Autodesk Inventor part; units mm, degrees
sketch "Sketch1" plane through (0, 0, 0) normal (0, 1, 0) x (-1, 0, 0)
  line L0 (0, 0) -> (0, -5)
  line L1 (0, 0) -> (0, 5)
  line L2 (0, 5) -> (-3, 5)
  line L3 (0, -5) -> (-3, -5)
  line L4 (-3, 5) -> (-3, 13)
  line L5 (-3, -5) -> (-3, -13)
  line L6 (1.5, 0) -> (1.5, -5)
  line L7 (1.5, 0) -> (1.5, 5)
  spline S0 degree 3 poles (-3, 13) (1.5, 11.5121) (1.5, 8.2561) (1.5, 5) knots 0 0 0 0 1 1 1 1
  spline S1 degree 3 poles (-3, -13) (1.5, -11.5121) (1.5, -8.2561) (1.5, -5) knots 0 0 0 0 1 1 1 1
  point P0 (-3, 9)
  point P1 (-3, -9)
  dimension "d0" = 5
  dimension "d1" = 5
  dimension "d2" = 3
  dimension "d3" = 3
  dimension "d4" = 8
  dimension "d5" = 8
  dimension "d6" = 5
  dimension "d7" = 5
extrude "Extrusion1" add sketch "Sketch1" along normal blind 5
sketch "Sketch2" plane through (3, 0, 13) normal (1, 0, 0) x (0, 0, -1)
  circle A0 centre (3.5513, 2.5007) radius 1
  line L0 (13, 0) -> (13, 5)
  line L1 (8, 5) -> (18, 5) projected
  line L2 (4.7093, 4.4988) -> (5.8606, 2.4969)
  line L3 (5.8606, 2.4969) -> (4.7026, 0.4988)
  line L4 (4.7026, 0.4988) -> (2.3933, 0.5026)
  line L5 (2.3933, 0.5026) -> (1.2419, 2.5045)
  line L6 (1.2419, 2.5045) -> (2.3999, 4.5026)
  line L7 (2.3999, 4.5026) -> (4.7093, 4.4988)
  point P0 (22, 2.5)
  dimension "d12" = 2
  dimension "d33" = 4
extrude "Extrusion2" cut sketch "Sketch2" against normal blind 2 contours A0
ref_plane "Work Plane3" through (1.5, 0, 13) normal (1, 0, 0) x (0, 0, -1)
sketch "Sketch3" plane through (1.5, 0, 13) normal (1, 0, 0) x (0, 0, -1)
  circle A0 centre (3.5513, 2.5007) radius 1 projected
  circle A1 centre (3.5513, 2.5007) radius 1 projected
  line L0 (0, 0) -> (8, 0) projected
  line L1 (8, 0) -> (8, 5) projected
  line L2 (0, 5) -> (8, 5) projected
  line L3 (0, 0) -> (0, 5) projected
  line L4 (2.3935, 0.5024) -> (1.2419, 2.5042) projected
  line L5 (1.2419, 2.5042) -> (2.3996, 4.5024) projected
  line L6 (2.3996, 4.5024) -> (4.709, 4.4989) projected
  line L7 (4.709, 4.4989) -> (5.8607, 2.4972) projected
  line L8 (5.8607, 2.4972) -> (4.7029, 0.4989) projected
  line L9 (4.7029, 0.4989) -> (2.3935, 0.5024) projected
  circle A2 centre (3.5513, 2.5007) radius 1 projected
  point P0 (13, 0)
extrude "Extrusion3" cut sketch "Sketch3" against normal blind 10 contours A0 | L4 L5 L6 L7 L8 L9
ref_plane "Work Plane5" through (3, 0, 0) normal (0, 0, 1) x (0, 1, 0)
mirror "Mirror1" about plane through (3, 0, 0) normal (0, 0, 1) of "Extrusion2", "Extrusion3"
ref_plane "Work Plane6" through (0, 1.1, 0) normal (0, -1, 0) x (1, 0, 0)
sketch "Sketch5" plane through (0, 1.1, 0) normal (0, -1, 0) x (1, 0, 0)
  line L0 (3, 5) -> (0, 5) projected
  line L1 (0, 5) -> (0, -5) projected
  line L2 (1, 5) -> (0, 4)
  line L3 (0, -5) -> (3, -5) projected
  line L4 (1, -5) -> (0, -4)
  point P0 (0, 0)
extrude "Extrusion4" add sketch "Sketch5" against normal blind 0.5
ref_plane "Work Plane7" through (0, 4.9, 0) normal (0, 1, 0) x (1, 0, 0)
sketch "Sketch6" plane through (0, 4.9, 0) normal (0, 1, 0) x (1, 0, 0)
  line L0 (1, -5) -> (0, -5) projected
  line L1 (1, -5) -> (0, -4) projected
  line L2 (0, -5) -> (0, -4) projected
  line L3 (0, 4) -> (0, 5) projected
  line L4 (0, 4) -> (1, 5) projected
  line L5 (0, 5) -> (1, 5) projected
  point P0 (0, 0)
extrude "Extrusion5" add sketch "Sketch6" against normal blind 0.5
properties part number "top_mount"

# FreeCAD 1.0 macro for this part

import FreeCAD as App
import Part
import Sketcher

V = App.Vector
Q = App.Units.Quantity


def add_polygon(sketch, points):
    """Adds a closed chain of lines whose ends are joined by coincident constraints."""
    first, n = sketch.GeometryCount, len(points)
    for a, b in zip(points, points[1:] + points[:1]):
        sketch.addGeometry(Part.LineSegment(App.Vector(*a, 0), App.Vector(*b, 0)), False)
    for i in range(n):
        sketch.addConstraint(Sketcher.Constraint("Coincident", first + i, 2, first + (i + 1) % n, 1))

doc = App.newDocument("Part")
body = doc.addObject("PartDesign::Body", "Body")

sketch1 = body.newObject("Sketcher::SketchObject", "Sketch")
sketch1.AttachmentSupport = (doc.getObject("XZ_Plane"), [""])
sketch1.MapMode = "FlatFace"
sketch1.addGeometry([
    Part.LineSegment(V(0, 5, 0), V(0, -5, 0)),
    Part.LineSegment(V(0, -5, 0), V(3, -5, 0)),
    Part.LineSegment(V(3, -5, 0), V(3, -13, 0)),
    Part.BSplineCurve([V(3, -13, 0), V(-1.5, -11.5121, 0), V(-1.5, -8.2561, 0), V(-1.5, -5, 0)], [4, 4], [0, 1], False, 3, [1, 1, 1, 1], False),
    Part.LineSegment(V(-1.5, -5, 0), V(-1.5, 5, 0)),
    Part.BSplineCurve([V(3, 13, 0), V(-1.5, 11.5121, 0), V(-1.5, 8.2561, 0), V(-1.5, 5, 0)], [4, 4], [0, 1], False, 3, [1, 1, 1, 1], False),
    Part.LineSegment(V(3, 13, 0), V(3, 5, 0)),
    Part.LineSegment(V(3, 5, 0), V(0, 5, 0)),
], False)
sketch1.addConstraint([
    Sketcher.Constraint("Block", 3),
    Sketcher.Constraint("Block", 5),
    Sketcher.Constraint("Coincident", 0, 2, 1, 1),
    Sketcher.Constraint("Coincident", 1, 2, 2, 1),
    Sketcher.Constraint("Coincident", 2, 2, 3, 1),
    Sketcher.Constraint("Coincident", 3, 2, 4, 1),
    Sketcher.Constraint("Coincident", 4, 2, 5, 2),
    Sketcher.Constraint("Coincident", 5, 1, 6, 1),
    Sketcher.Constraint("Coincident", 6, 2, 7, 1),
    Sketcher.Constraint("Coincident", 7, 2, 0, 1),
    Sketcher.Constraint("Vertical", 0),
    Sketcher.Constraint("Horizontal", 1),
    Sketcher.Constraint("Vertical", 2),
    Sketcher.Constraint("Vertical", 6),
    Sketcher.Constraint("Horizontal", 7),
    Sketcher.Constraint("Symmetric", 0, 2, 7, 2, -1, 1),
    Sketcher.Constraint("Horizontal", 4, 2, 6, 2),
])
pad1 = body.newObject("PartDesign::Pad", "Pad")
pad1.Profile = sketch1
pad1.Length = 5
pad1.Reversed = True

sketch2 = body.newObject("Sketcher::SketchObject", "Sketch001")
sketch2.AttachmentSupport = (doc.getObject("YZ_Plane"), [""])
sketch2.MapMode = "FlatFace"
sketch2.AttachmentOffset = App.Placement(V(0, 0, 3), App.Rotation())
sketch2.addGeometry(Part.Circle(V(2.5007, 9.4487, 0), V(0, 0, 1), 1), False)
sketch2.addConstraint([
    Sketcher.Constraint("Diameter", 0, Q("2 mm")),
    Sketcher.Constraint("DistanceX", -1, 1, 0, 3, Q("2.5007 mm")),
    Sketcher.Constraint("DistanceY", -1, 1, 0, 3, Q("9.4487 mm")),
])
pocket1 = body.newObject("PartDesign::Pocket", "Pocket")
pocket1.Profile = sketch2
pocket1.Length = 2

sketch3 = body.newObject("Sketcher::SketchObject", "Sketch002")
sketch3.AttachmentSupport = (doc.getObject("YZ_Plane"), [""])
sketch3.MapMode = "FlatFace"
sketch3.AttachmentOffset = App.Placement(V(0, 0, 1.5), App.Rotation())
add_polygon(sketch3, [(2.5042, 11.7581), (0.5024, 10.6065), (0.4989, 8.2971), (2.4972, 7.1393), (4.4989, 8.291), (4.5024, 10.6004)])
sketch3.addConstraint([
    Sketcher.Constraint("Parallel", 0, 3),
    Sketcher.Constraint("Parallel", 1, 4),
    Sketcher.Constraint("Parallel", 2, 5),
    Sketcher.Constraint("Equal", 0, 1),
    Sketcher.Constraint("Equal", 1, 2),
    Sketcher.Constraint("Equal", 2, 3),
    Sketcher.Constraint("DistanceX", 1, 2, 3, 2, Q("4 mm")),
    Sketcher.Constraint("Angle", 0, Q("-150.089 deg")),
    Sketcher.Constraint("DistanceX", -1, 1, 1, 2, Q("0.499 mm")),
    Sketcher.Constraint("DistanceY", -1, 1, 1, 2, Q("8.297 mm")),
    Sketcher.Constraint("DistanceY", -1, 1, 3, 2, Q("8.291 mm")),
    Sketcher.Constraint("DistanceX", 2, 2, 5, 2, Q("0.007 mm")),
])
pocket2 = body.newObject("PartDesign::Pocket", "Pocket001")
pocket2.Profile = sketch3
pocket2.Length = 10
doc.recompute()

mirrored = body.newObject("PartDesign::Mirrored", "Mirrored")
mirrored.Originals = [pocket1, pocket2]
mirrored.MirrorPlane = (doc.getObject("XY_Plane"), [""])
body.Tip = mirrored

sketch4 = body.newObject("Sketcher::SketchObject", "Sketch003")
sketch4.AttachmentSupport = (doc.getObject("XZ_Plane"), [""])
sketch4.MapMode = "FlatFace"
sketch4.AttachmentOffset = App.Placement(V(0, 0, -1.1), App.Rotation())
add_polygon(sketch4, [(0, 4), (1, 5), (0, 5)])
add_polygon(sketch4, [(1, -5), (0, -4), (0, -5)])
sketch4.addConstraint([
    Sketcher.Constraint("Horizontal", 1),
    Sketcher.Constraint("Vertical", 2),
    Sketcher.Constraint("Vertical", 4),
    Sketcher.Constraint("Horizontal", 5),
    Sketcher.Constraint("Symmetric", 2, 2, 3, 2, -1, 1),
    Sketcher.Constraint("Symmetric", 1, 2, 4, 2, -1),
    Sketcher.Constraint("Perpendicular", 0, 3),
    Sketcher.Constraint("Vertical", 0, 2, 5, 2),
    Sketcher.Constraint("DistanceX", 1, 2, 1, 1, Q("1 mm")),
    Sketcher.Constraint("DistanceY", -1, 1, 0, 2, Q("5 mm")),
])
pad2 = body.newObject("PartDesign::Pad", "Pad001")
pad2.Profile = sketch4
pad2.Length = 0.5
pad2.Reversed = True

sketch5 = body.newObject("Sketcher::SketchObject", "Sketch004")
sketch5.AttachmentSupport = (doc.getObject("XZ_Plane"), [""])
sketch5.MapMode = "FlatFace"
sketch5.AttachmentOffset = App.Placement(V(0, 0, -4.9), App.Rotation())
add_polygon(sketch5, [(0, 5), (1, 5), (0, 4)])
add_polygon(sketch5, [(0, -5), (0, -4), (1, -5)])
sketch5.addConstraint([
    Sketcher.Constraint("Horizontal", 0),
    Sketcher.Constraint("Vertical", 2),
    Sketcher.Constraint("Vertical", 3),
    Sketcher.Constraint("Horizontal", 5),
    Sketcher.Constraint("Symmetric", 1, 2, 3, 2, -1, 1),
    Sketcher.Constraint("Symmetric", 0, 2, 4, 2, -1),
    Sketcher.Constraint("PointOnObject", 1, 2, -2),
    Sketcher.Constraint("Perpendicular", 1, 4),
    Sketcher.Constraint("DistanceX", 0, 1, 0, 2, Q("1 mm")),
    Sketcher.Constraint("DistanceY", -1, 1, 0, 2, Q("5 mm")),
])
pad3 = body.newObject("PartDesign::Pad", "Pad002")
pad3.Profile = sketch5
pad3.Length = 0.5

doc.recompute()
